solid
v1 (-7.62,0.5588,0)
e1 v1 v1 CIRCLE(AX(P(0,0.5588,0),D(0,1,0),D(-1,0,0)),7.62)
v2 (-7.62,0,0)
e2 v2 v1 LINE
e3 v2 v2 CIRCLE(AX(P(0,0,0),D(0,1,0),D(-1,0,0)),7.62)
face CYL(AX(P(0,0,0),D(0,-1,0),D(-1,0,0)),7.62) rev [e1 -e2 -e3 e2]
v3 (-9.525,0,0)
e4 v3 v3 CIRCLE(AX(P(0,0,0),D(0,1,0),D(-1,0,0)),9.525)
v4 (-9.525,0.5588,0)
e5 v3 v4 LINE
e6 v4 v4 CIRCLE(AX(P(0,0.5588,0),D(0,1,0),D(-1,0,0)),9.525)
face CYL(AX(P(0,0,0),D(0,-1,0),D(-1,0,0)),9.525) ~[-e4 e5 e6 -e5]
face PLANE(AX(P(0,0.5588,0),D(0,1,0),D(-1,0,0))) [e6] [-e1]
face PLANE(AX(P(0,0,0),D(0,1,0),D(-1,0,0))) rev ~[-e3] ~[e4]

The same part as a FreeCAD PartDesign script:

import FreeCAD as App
import Part
import Sketcher
Q = App.Units.Quantity

doc = App.newDocument("Part")
body = doc.addObject("PartDesign::Body", "Body")

sketch1 = body.newObject("Sketcher::SketchObject", "Sketch")
sketch1.AttachmentSupport = (doc.getObject("XZ_Plane"), [""])
sketch1.MapMode = "FlatFace"
sketch1.addGeometry(Part.Circle(App.Vector(0, 0, 0), App.Vector(0, 0, 1), 10), False)
sketch1.addGeometry(Part.Circle(App.Vector(0, 0, 0), App.Vector(0, 0, 1), 8), False)
sketch1.addConstraint(Sketcher.Constraint("Coincident", 0, 3, -1, 1))
sketch1.addConstraint(Sketcher.Constraint("Coincident", 1, 3, -1, 1))
sketch1.addConstraint(Sketcher.Constraint("Diameter", 1, Q("0.6 in")))
sketch1.addConstraint(Sketcher.Constraint("Diameter", 0, Q("0.75 in")))
pad1 = body.newObject("PartDesign::Pad", "Pad")
pad1.Profile = sketch1
pad1.Length = Q("0.022 in")
pad1.Reversed = True

doc.recompute()
